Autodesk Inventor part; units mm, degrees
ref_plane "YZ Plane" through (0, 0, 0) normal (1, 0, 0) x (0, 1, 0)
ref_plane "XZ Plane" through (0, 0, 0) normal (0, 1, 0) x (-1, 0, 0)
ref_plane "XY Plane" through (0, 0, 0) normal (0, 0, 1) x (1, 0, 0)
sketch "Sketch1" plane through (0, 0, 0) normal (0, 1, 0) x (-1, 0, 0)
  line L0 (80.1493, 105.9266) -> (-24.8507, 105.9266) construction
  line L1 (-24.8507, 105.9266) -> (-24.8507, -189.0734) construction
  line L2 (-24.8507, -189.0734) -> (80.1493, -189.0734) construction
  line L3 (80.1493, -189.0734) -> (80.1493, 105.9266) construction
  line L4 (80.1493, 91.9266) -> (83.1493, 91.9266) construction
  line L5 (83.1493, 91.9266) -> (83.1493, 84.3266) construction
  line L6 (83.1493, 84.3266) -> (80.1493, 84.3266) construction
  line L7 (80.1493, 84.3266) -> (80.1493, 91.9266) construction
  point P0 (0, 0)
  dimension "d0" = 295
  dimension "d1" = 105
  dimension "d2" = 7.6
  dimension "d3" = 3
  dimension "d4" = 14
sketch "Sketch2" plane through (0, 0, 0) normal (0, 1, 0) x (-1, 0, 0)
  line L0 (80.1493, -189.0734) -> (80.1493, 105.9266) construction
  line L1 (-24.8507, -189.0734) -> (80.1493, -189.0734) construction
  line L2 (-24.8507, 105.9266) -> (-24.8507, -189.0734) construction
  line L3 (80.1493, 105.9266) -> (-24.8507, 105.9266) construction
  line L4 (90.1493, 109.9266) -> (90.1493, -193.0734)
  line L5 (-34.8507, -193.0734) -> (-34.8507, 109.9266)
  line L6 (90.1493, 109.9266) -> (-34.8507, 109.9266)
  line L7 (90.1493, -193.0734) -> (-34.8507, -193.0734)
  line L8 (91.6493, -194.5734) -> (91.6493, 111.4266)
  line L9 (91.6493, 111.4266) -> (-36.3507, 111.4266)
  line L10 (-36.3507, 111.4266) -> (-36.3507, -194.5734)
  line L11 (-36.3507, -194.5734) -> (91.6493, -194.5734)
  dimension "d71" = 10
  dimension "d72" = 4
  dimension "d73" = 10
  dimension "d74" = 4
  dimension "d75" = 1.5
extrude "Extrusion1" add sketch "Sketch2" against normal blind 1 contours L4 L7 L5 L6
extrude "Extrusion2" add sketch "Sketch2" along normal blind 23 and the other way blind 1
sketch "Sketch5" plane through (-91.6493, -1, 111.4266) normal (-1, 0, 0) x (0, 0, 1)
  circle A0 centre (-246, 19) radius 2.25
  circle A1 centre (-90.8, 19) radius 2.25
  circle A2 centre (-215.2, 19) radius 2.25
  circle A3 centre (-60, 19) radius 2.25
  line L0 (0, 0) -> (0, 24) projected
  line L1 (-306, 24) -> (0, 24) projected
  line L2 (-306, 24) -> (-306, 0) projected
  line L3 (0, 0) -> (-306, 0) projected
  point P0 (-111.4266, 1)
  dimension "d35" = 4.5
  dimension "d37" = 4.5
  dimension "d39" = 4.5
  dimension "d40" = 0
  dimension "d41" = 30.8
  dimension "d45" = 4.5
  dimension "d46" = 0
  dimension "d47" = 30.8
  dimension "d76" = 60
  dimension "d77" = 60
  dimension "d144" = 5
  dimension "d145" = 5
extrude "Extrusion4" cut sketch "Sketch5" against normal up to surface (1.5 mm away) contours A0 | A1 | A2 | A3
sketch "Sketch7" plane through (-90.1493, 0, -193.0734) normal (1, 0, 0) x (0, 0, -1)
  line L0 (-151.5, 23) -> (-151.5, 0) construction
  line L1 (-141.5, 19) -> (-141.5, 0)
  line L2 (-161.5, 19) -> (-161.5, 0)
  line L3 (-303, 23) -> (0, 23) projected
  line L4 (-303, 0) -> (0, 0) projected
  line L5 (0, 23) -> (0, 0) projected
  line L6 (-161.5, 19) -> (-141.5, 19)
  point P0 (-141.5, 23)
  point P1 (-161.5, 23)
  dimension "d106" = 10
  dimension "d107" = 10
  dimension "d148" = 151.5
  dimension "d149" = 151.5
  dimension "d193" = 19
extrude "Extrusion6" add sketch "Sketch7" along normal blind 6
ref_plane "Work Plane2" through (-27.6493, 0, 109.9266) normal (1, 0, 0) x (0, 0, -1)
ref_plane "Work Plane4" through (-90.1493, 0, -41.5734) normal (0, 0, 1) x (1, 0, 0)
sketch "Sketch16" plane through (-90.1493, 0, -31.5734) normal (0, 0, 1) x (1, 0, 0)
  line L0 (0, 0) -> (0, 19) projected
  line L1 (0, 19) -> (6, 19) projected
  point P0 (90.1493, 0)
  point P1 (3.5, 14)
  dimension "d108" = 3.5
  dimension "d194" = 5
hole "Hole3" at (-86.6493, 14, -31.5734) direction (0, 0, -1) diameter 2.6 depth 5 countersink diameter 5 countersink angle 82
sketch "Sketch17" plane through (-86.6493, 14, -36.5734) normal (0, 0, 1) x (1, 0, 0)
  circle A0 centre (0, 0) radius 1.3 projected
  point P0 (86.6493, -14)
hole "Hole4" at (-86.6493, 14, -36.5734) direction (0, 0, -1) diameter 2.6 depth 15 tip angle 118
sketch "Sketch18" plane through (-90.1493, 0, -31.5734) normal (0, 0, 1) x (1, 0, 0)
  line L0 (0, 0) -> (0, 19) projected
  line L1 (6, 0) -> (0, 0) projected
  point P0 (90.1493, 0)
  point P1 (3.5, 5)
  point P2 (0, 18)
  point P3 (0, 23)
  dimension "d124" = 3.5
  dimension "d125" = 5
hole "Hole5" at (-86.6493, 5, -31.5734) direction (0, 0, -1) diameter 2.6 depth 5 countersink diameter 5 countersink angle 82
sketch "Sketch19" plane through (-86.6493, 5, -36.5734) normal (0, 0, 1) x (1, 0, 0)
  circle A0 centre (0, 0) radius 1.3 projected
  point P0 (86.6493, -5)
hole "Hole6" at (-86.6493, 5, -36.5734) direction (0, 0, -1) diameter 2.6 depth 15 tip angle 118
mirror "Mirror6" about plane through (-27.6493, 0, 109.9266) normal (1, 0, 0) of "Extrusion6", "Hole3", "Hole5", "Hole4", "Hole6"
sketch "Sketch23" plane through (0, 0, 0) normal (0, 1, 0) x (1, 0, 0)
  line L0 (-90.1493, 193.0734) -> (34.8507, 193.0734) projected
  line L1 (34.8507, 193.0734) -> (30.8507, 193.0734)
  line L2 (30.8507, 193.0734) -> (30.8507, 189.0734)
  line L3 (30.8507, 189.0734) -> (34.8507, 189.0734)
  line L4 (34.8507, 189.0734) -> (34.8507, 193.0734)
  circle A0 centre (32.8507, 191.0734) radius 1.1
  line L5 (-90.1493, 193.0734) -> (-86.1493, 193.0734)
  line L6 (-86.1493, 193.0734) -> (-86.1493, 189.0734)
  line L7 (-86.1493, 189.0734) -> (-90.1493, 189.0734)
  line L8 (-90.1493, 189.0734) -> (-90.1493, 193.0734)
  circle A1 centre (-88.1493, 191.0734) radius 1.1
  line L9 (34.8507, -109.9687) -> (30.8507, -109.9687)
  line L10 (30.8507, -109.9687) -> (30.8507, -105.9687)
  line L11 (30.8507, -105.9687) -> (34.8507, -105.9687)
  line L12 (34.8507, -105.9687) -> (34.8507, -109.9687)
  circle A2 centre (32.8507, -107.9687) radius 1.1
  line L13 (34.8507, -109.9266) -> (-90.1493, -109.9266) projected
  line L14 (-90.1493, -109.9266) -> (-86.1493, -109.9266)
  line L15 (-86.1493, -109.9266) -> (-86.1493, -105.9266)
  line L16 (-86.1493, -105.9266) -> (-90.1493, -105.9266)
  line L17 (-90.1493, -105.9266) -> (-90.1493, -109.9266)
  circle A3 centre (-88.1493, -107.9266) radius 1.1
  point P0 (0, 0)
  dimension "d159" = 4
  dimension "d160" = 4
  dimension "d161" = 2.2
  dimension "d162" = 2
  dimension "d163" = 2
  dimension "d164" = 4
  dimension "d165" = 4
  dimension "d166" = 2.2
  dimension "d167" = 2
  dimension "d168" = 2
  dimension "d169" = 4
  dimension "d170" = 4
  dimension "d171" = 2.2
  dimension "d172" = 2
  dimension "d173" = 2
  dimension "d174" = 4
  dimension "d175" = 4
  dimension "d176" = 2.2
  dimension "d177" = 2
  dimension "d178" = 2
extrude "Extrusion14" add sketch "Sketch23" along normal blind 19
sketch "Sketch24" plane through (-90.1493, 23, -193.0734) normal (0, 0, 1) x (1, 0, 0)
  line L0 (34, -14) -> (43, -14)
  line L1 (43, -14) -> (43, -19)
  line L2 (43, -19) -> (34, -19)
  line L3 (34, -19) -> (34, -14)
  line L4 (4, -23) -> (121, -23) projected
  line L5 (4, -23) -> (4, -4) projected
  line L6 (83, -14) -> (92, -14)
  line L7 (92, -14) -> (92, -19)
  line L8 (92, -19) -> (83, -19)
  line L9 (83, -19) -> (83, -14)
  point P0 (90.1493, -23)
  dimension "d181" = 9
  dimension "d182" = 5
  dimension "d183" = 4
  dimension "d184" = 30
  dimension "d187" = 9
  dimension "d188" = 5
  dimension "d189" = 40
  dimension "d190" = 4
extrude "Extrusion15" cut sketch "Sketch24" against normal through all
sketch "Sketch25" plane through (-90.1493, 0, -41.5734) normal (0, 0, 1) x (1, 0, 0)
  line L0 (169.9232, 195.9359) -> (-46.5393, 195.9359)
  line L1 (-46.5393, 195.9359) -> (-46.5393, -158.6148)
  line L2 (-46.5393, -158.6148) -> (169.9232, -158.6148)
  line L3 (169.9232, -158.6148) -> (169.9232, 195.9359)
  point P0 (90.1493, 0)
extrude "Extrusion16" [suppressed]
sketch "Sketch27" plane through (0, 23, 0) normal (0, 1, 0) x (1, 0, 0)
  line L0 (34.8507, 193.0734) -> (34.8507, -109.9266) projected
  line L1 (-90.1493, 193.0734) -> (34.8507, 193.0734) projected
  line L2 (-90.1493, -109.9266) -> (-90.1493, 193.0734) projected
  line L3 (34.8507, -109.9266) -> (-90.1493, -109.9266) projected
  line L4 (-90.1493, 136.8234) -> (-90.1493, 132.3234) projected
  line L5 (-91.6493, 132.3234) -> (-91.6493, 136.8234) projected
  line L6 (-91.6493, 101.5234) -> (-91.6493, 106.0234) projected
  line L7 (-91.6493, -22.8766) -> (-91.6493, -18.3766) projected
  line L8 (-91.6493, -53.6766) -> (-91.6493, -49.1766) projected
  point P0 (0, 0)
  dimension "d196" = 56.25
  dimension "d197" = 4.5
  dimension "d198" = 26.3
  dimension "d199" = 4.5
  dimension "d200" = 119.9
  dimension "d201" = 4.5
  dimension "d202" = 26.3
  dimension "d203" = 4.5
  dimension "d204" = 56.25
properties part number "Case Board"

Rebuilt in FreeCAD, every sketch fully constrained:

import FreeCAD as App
import Part
import Sketcher
Q = App.Units.Quantity


def add_polygon(sketch, points):
    """Adds a closed chain of lines whose ends are joined by coincident constraints."""
    first, n = sketch.GeometryCount, len(points)
    for a, b in zip(points, points[1:] + points[:1]):
        sketch.addGeometry(Part.LineSegment(App.Vector(*a, 0), App.Vector(*b, 0)), False)
    for i in range(n):
        sketch.addConstraint(Sketcher.Constraint("Coincident", first + i, 2, first + (i + 1) % n, 1))

doc = App.newDocument("Part")
params = doc.addObject("Spreadsheet::Sheet", "Params")
for row, (alias, value) in enumerate([
    ("sketch1_width", "125 mm"),
    ("sketch1_height", "303 mm"),
    ("pad1_length", "1 mm"),
    ("sketch2_width", "128 mm"),
    ("sketch2_height", "306 mm"),
    ("pad2_length", "23 mm"),
    ("pad2_length2", "1 mm"),
    ("sketch3_diameter", "4.5 mm"),
    ("pocket1_length", "1.5 mm"),
    ("sketch4_width", "19 mm"),
    ("sketch4_height", "20 mm"),
    ("pad3_length", "6 mm"),
    ("sketch5_diameter", "2.6 mm"),
    ("hole_diameter", "2.6 mm"),
    ("hole_depth", "5 mm"),
    ("hole_csink_diameter", "5 mm"),
    ("sketch6_diameter", "2.6 mm"),
    ("hole2_diameter", "2.6 mm"),
    ("hole2_depth", "15 mm"),
    ("sketch7_diameter", "2.6 mm"),
    ("hole3_diameter", "2.6 mm"),
    ("hole3_depth", "5 mm"),
    ("hole3_csink_diameter", "5 mm"),
    ("sketch8_diameter", "2.6 mm"),
    ("hole4_diameter", "2.6 mm"),
    ("hole4_depth", "15 mm"),
    ("sketch9_diameter", "2.2 mm"),
    ("sketch9_width", "4 mm"),
    ("pad4_length", "19 mm"),
    ("sketch10_width", "9 mm"),
    ("sketch10_height", "5 mm"),
], start=1):
    params.set(f"A{row}", alias)
    params.set(f"B{row}", "=" + value)
    params.setAlias(f"B{row}", alias)

body = doc.addObject("PartDesign::Body", "Body")

sketch1 = body.newObject("Sketcher::SketchObject", "Sketch")
sketch1.AttachmentSupport = (doc.getObject("XZ_Plane"), [""])
sketch1.MapMode = "FlatFace"
add_polygon(sketch1, [(-90, -193), (-90, 110), (35, 110), (35, -193)])
sketch1.addConstraint([
    Sketcher.Constraint("Vertical", 0),
    Sketcher.Constraint("Horizontal", 1),
    Sketcher.Constraint("Vertical", 2),
    Sketcher.Constraint("Horizontal", 3),
    Sketcher.Constraint("DistanceX", 1, 1, 1, 2, Q("125 mm")),
    Sketcher.Constraint("DistanceY", 0, 1, 0, 2, Q("303 mm")),
    Sketcher.Constraint("DistanceX", 0, 2, -1, 1, Q("90.1493 mm")),
    Sketcher.Constraint("DistanceY", -1, 1, 0, 2, Q("109.9266 mm")),
])
sketch1.setExpression("Constraints[8]", "Params.sketch1_width")
sketch1.setExpression("Constraints[9]", "Params.sketch1_height")
pad1 = body.newObject("PartDesign::Pad", "Pad")
pad1.Profile = sketch1
pad1.setExpression("Length", "Params.pad1_length")

sketch2 = body.newObject("Sketcher::SketchObject", "Sketch001")
sketch2.AttachmentSupport = (doc.getObject("XZ_Plane"), [""])
sketch2.MapMode = "FlatFace"
add_polygon(sketch2, [(36, -195), (-92, -195), (-92, 111), (36, 111)])
add_polygon(sketch2, [(35, 110), (-90, 110), (-90, -193), (35, -193)])
sketch2.addConstraint([
    Sketcher.Constraint("Horizontal", 0),
    Sketcher.Constraint("Vertical", 1),
    Sketcher.Constraint("Horizontal", 2),
    Sketcher.Constraint("Vertical", 3),
    Sketcher.Constraint("Horizontal", 4),
    Sketcher.Constraint("Vertical", 5),
    Sketcher.Constraint("Horizontal", 6),
    Sketcher.Constraint("Vertical", 7),
    Sketcher.Constraint("DistanceX", 1, 2, 4, 2, Q("1.5 mm")),
    Sketcher.Constraint("DistanceY", 4, 2, 1, 2, Q("1.5 mm")),
    Sketcher.Constraint("DistanceY", 0, 2, 5, 2, Q("1.5 mm")),
    Sketcher.Constraint("DistanceX", 6, 2, 3, 2, Q("1.5 mm")),
    Sketcher.Constraint("DistanceX", 0, 2, 0, 1, Q("128 mm")),
    Sketcher.Constraint("DistanceY", 1, 1, 1, 2, Q("306 mm")),
    Sketcher.Constraint("DistanceX", 0, 2, -1, 1, Q("91.6493 mm")),
    Sketcher.Constraint("DistanceY", 0, 2, -1, 1, Q("194.5734 mm")),
])
sketch2.setExpression("Constraints[20]", "Params.sketch2_width")
sketch2.setExpression("Constraints[21]", "Params.sketch2_height")
pad2 = body.newObject("PartDesign::Pad", "Pad001")
pad2.Profile = sketch2
pad2.Type = "TwoLengths"
pad2.setExpression("Length", "Params.pad2_length")
pad2.setExpression("Length2", "Params.pad2_length2")
pad2.Reversed = True

sketch3 = body.newObject("Sketcher::SketchObject", "Sketch002")
sketch3.AttachmentSupport = (doc.getObject("YZ_Plane"), [""])
sketch3.MapMode = "FlatFace"
sketch3.AttachmentOffset = App.Placement(App.Vector(0, 0, -91.6493), App.Rotation())
sketch3.addGeometry([
    Part.Circle(App.Vector(18, -134.6, 0), App.Vector(0, 0, 1), 2.2),
    Part.Circle(App.Vector(18, 20.6, 0), App.Vector(0, 0, 1), 2.2),
    Part.Circle(App.Vector(18, -103.8, 0), App.Vector(0, 0, 1), 2.2),
    Part.Circle(App.Vector(18, 51.4, 0), App.Vector(0, 0, 1), 2.2),
], False)
sketch3.addConstraint([
    Sketcher.Constraint("Equal", 0, 1),
    Sketcher.Constraint("Equal", 1, 2),
    Sketcher.Constraint("Equal", 2, 3),
    Sketcher.Constraint("Vertical", 0, 3, 1, 3),
    Sketcher.Constraint("Vertical", 1, 3, 2, 3),
    Sketcher.Constraint("Vertical", 2, 3, 3, 3),
    Sketcher.Constraint("Diameter", 0, Q("4.5 mm")),
    Sketcher.Constraint("DistanceY", 0, 3, 2, 3, Q("30.8 mm")),
    Sketcher.Constraint("DistanceY", 1, 3, 3, 3, Q("30.8 mm")),
    Sketcher.Constraint("DistanceX", -1, 1, 0, 3, Q("18 mm")),
    Sketcher.Constraint("DistanceY", 0, 3, 3, 3, Q("186 mm")),
    Sketcher.Constraint("DistanceY", 0, 3, -1, 1, Q("134.5734 mm")),
])
sketch3.setExpression("Constraints[6]", "Params.sketch3_diameter")
pocket1 = body.newObject("PartDesign::Pocket", "Pocket")
pocket1.Profile = sketch3
pocket1.setExpression("Length", "Params.pocket1_length")
pocket1.Reversed = True

sketch4 = body.newObject("Sketcher::SketchObject", "Sketch003")
sketch4.AttachmentSupport = (doc.getObject("YZ_Plane"), [""])
sketch4.MapMode = "FlatFace"
sketch4.AttachmentOffset = App.Placement(App.Vector(0, 0, -90.1493), App.Rotation())
add_polygon(sketch4, [(0, -52), (19, -52), (19, -32), (0, -32)])
sketch4.addConstraint([
    Sketcher.Constraint("Horizontal", 0),
    Sketcher.Constraint("Vertical", 1),
    Sketcher.Constraint("Horizontal", 2),
    Sketcher.Constraint("Vertical", 3),
    Sketcher.Constraint("PointOnObject", 2, 2, -2),
    Sketcher.Constraint("DistanceX", 0, 1, 0, 2, Q("19 mm")),
    Sketcher.Constraint("DistanceY", 1, 1, 1, 2, Q("20 mm")),
    Sketcher.Constraint("DistanceY", 0, 2, -1, 1, Q("51.5734 mm")),
])
sketch4.setExpression("Constraints[9]", "Params.sketch4_width")
sketch4.setExpression("Constraints[10]", "Params.sketch4_height")
pad3 = body.newObject("PartDesign::Pad", "Pad002")
pad3.Profile = sketch4
pad3.setExpression("Length", "Params.pad3_length")

sketch5 = body.newObject("Sketcher::SketchObject", "Sketch004")
sketch5.AttachmentSupport = (doc.getObject("XY_Plane"), [""])
sketch5.MapMode = "FlatFace"
sketch5.AttachmentOffset = App.Placement(App.Vector(0, 0, -31.5734), App.Rotation())
sketch5.addGeometry(Part.Circle(App.Vector(-86.6, 14, 0), App.Vector(0, 0, 1), 1.3), False)
sketch5.addConstraint([
    Sketcher.Constraint("Diameter", 0, Q("2.6 mm")),
    Sketcher.Constraint("DistanceY", -1, 1, 0, 3, Q("14 mm")),
    Sketcher.Constraint("DistanceX", 0, 3, -1, 1, Q("86.6493 mm")),
])
sketch5.setExpression("Constraints[0]", "Params.sketch5_diameter")
doc.recompute()
hole = body.newObject("PartDesign::Hole", "Hole")
hole.Profile = sketch5
hole.ThreadType = "None"
hole.setExpression("Diameter", "Params.hole_diameter")
hole.DepthType = "Dimension"
hole.setExpression("Depth", "Params.hole_depth")
hole.DrillPoint = "Flat"
hole.HoleCutType = "Countersink"
hole.setExpression("HoleCutDiameter", "Params.hole_csink_diameter")
hole.HoleCutCountersinkAngle = 82

sketch6 = body.newObject("Sketcher::SketchObject", "Sketch005")
sketch6.AttachmentSupport = (doc.getObject("XY_Plane"), [""])
sketch6.MapMode = "FlatFace"
sketch6.AttachmentOffset = App.Placement(App.Vector(0, 0, -36.5734), App.Rotation())
sketch6.addGeometry(Part.Circle(App.Vector(-86.6, 14, 0), App.Vector(0, 0, 1), 1.3), False)
sketch6.addConstraint([
    Sketcher.Constraint("Diameter", 0, Q("2.6 mm")),
    Sketcher.Constraint("DistanceY", -1, 1, 0, 3, Q("14 mm")),
    Sketcher.Constraint("DistanceX", 0, 3, -1, 1, Q("86.6493 mm")),
])
sketch6.setExpression("Constraints[0]", "Params.sketch6_diameter")
doc.recompute()
hole2 = body.newObject("PartDesign::Hole", "Hole001")
hole2.Profile = sketch6
hole2.ThreadType = "None"
hole2.setExpression("Diameter", "Params.hole2_diameter")
hole2.DepthType = "Dimension"
hole2.setExpression("Depth", "Params.hole2_depth")
hole2.DrillPoint = "Angled"
hole2.DrillPointAngle = 118

sketch7 = body.newObject("Sketcher::SketchObject", "Sketch006")
sketch7.AttachmentSupport = (doc.getObject("XY_Plane"), [""])
sketch7.MapMode = "FlatFace"
sketch7.AttachmentOffset = App.Placement(App.Vector(0, 0, -31.5734), App.Rotation())
sketch7.addGeometry(Part.Circle(App.Vector(-86.6, 5, 0), App.Vector(0, 0, 1), 1.3), False)
sketch7.addConstraint([
    Sketcher.Constraint("Diameter", 0, Q("2.6 mm")),
    Sketcher.Constraint("DistanceY", -1, 1, 0, 3, Q("5 mm")),
    Sketcher.Constraint("DistanceX", 0, 3, -1, 1, Q("86.6493 mm")),
])
sketch7.setExpression("Constraints[0]", "Params.sketch7_diameter")
doc.recompute()
hole3 = body.newObject("PartDesign::Hole", "Hole002")
hole3.Profile = sketch7
hole3.ThreadType = "None"
hole3.setExpression("Diameter", "Params.hole3_diameter")
hole3.DepthType = "Dimension"
hole3.setExpression("Depth", "Params.hole3_depth")
hole3.DrillPoint = "Flat"
hole3.HoleCutType = "Countersink"
hole3.setExpression("HoleCutDiameter", "Params.hole3_csink_diameter")
hole3.HoleCutCountersinkAngle = 82

sketch8 = body.newObject("Sketcher::SketchObject", "Sketch007")
sketch8.AttachmentSupport = (doc.getObject("XY_Plane"), [""])
sketch8.MapMode = "FlatFace"
sketch8.AttachmentOffset = App.Placement(App.Vector(0, 0, -36.5734), App.Rotation())
sketch8.addGeometry(Part.Circle(App.Vector(-86.6, 5, 0), App.Vector(0, 0, 1), 1.3), False)
sketch8.addConstraint([
    Sketcher.Constraint("Diameter", 0, Q("2.6 mm")),
    Sketcher.Constraint("DistanceY", -1, 1, 0, 3, Q("5 mm")),
    Sketcher.Constraint("DistanceX", 0, 3, -1, 1, Q("86.6493 mm")),
])
sketch8.setExpression("Constraints[0]", "Params.sketch8_diameter")
doc.recompute()
hole4 = body.newObject("PartDesign::Hole", "Hole003")
hole4.Profile = sketch8
hole4.ThreadType = "None"
hole4.setExpression("Diameter", "Params.hole4_diameter")
hole4.DepthType = "Dimension"
hole4.setExpression("Depth", "Params.hole4_depth")
hole4.DrillPoint = "Angled"
hole4.DrillPointAngle = 118
doc.recompute()

datumplane = body.newObject("PartDesign::Plane", "DatumPlane")
datumplane.AttachmentSupport = (doc.getObject("YZ_Plane"), [""])
datumplane.MapMode = "FlatFace"
datumplane.AttachmentOffset = App.Placement(App.Vector(0, 0, -27.6493), App.Rotation())
mirrored = body.newObject("PartDesign::Mirrored", "Mirrored")
mirrored.Originals = [pad3, hole, hole3, hole2, hole4]
mirrored.MirrorPlane = (datumplane, [""])
body.Tip = mirrored

sketch9 = body.newObject("Sketcher::SketchObject", "Sketch008")
sketch9.AttachmentSupport = (doc.getObject("XZ_Plane"), [""])
sketch9.MapMode = "FlatFace"
add_polygon(sketch9, [(34.9, -193.1), (30.9, -193.1), (30.9, -189.1), (34.9, -189.1)])
sketch9.addGeometry(Part.Circle(App.Vector(32.9, -191.1, 0), App.Vector(0, 0, 1), 1.1), False)
add_polygon(sketch9, [(-86.1, -193.1), (-90.1, -193.1), (-90.1, -189.1), (-86.1, -189.1)])
sketch9.addGeometry(Part.Circle(App.Vector(-88.1, -191.1, 0), App.Vector(0, 0, 1), 1.1), False)
add_polygon(sketch9, [(-90.1, 109.9), (-86.1, 109.9), (-86.1, 105.9), (-90.1, 105.9)])
sketch9.addGeometry(Part.Circle(App.Vector(-88.1, 107.9, 0), App.Vector(0, 0, 1), 1.1), False)
add_polygon(sketch9, [(30.9, 110), (34.9, 110), (34.9, 106), (30.9, 106)])
sketch9.addGeometry(Part.Circle(App.Vector(32.9, 108, 0), App.Vector(0, 0, 1), 1.1), False)
sketch9.addConstraint([
    Sketcher.Constraint("Horizontal", 0),
    Sketcher.Constraint("Vertical", 1),
    Sketcher.Constraint("Horizontal", 2),
    Sketcher.Constraint("Vertical", 3),
    Sketcher.Constraint("Horizontal", 5),
    Sketcher.Constraint("Vertical", 6),
    Sketcher.Constraint("Horizontal", 7),
    Sketcher.Constraint("Vertical", 8),
    Sketcher.Constraint("Horizontal", 10),
    Sketcher.Constraint("Vertical", 11),
    Sketcher.Constraint("Horizontal", 12),
    Sketcher.Constraint("Vertical", 13),
    Sketcher.Constraint("Horizontal", 15),
    Sketcher.Constraint("Vertical", 16),
    Sketcher.Constraint("Horizontal", 17),
    Sketcher.Constraint("Vertical", 18),
    Sketcher.Constraint("Equal", 4, 9),
    Sketcher.Constraint("Equal", 9, 14),
    Sketcher.Constraint("Equal", 14, 19),
    Sketcher.Constraint("Horizontal", 4, 3, 9, 3),
    Sketcher.Constraint("Horizontal", 3, 2, 5, 2),
    Sketcher.Constraint("Horizontal", 2, 2, 6, 2),
    Sketcher.Constraint("Vertical", 9, 3, 14, 3),
    Sketcher.Constraint("Vertical", 4, 3, 19, 3),
    Sketcher.Constraint("Vertical", 8, 2, 10, 2),
    Sketcher.Constraint("Vertical", 6, 2, 12, 2),
    Sketcher.Constraint("Vertical", 3, 2, 15, 2),
    Sketcher.Constraint("Vertical", 1, 2, 17, 2),
    Sketcher.Constraint("Equal", 2, 5),
    Sketcher.Constraint("Equal", 17, 1),
    Sketcher.Constraint("Equal", 8, 11),
    Sketcher.Constraint("Equal", 13, 16),
    Sketcher.Constraint("Diameter", 4, Q("2.2 mm")),
    Sketcher.Constraint("DistanceX", 0, 2, 0, 1, Q("4 mm")),
    Sketcher.Constraint("DistanceX", 0, 2, 4, 3, Q("2 mm")),
    Sketcher.Constraint("DistanceY", 0, 2, 4, 3, Q("2 mm")),
    Sketcher.Constraint("DistanceX", 5, 2, 9, 3, Q("2 mm")),
    Sketcher.Constraint("DistanceY", 14, 3, 10, 2, Q("2 mm")),
    Sketcher.Constraint("DistanceY", 19, 3, 15, 2, Q("2 mm")),
    Sketcher.Constraint("DistanceX", 9, 3, 4, 3, Q("121 mm")),
    Sketcher.Constraint("DistanceY", 9, 3, 14, 3, Q("299 mm")),
    Sketcher.Constraint("DistanceY", 14, 3, 19, 3, Q("0.042 mm")),
    Sketcher.Constraint("DistanceX", -1, 1, 4, 3, Q("32.8507 mm")),
    Sketcher.Constraint("DistanceY", 4, 3, -1, 1, Q("191.0734 mm")),
])
sketch9.setExpression("Constraints[48]", "Params.sketch9_diameter")
sketch9.setExpression("Constraints[49]", "Params.sketch9_width")
pad4 = body.newObject("PartDesign::Pad", "Pad003")
pad4.Profile = sketch9
pad4.setExpression("Length", "Params.pad4_length")
pad4.Reversed = True

sketch10 = body.newObject("Sketcher::SketchObject", "Sketch009")
sketch10.AttachmentSupport = (doc.getObject("XY_Plane"), [""])
sketch10.MapMode = "FlatFace"
sketch10.AttachmentOffset = App.Placement(App.Vector(0, 0, -193.0734), App.Rotation())
add_polygon(sketch10, [(-47, 9), (-56, 9), (-56, 4), (-47, 4)])
add_polygon(sketch10, [(2, 9), (-7, 9), (-7, 4), (2, 4)])
sketch10.addConstraint([
    Sketcher.Constraint("Horizontal", 0),
    Sketcher.Constraint("Vertical", 1),
    Sketcher.Constraint("Horizontal", 2),
    Sketcher.Constraint("Vertical", 3),
    Sketcher.Constraint("Horizontal", 4),
    Sketcher.Constraint("Vertical", 5),
    Sketcher.Constraint("Horizontal", 6),
    Sketcher.Constraint("Vertical", 7),
    Sketcher.Constraint("Horizontal", 3, 2, 4, 2),
    Sketcher.Constraint("Horizontal", 2, 2, 5, 2),
    Sketcher.Constraint("Equal", 2, 4),
    Sketcher.Constraint("DistanceX", 0, 2, 0, 1, Q("9 mm")),
    Sketcher.Constraint("DistanceY", 1, 2, 1, 1, Q("5 mm")),
    Sketcher.Constraint("DistanceY", -1, 1, 0, 2, Q("9 mm")),
    Sketcher.Constraint("DistanceX", 3, 2, 4, 2, Q("40 mm")),
    Sketcher.Constraint("DistanceX", 0, 2, -1, 1, Q("56.1493 mm")),
])
sketch10.setExpression("Constraints[19]", "Params.sketch10_width")
sketch10.setExpression("Constraints[20]", "Params.sketch10_height")
pocket2 = body.newObject("PartDesign::Pocket", "Pocket001")
pocket2.Profile = sketch10
pocket2.Type = "ThroughAll"

doc.recompute()
